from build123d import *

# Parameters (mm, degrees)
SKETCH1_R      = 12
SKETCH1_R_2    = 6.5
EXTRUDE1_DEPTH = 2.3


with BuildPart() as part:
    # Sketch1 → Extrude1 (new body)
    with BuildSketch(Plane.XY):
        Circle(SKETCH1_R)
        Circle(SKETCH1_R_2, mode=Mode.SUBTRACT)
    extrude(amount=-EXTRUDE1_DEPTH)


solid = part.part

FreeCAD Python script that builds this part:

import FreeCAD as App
import Part
import Sketcher
Q = App.Units.Quantity

doc = App.newDocument("Part")
body = doc.addObject("PartDesign::Body", "Body")

sketch1 = doc.addObject("Sketcher::SketchObject", "Sketch")
body.addObject(sketch1)
sketch1.AttachmentSupport = (doc.XY_Plane, [""])
sketch1.MapMode = "FlatFace"
sketch1.addGeometry(Part.Circle(App.Vector(0, 0, 0), App.Vector(0, 0, 1), 12), False)
sketch1.addGeometry(Part.Circle(App.Vector(0, 0, 0), App.Vector(0, 0, 1), 6), False)
sketch1.addConstraint(Sketcher.Constraint("Coincident", 0, 3, -1, 1))
sketch1.addConstraint(Sketcher.Constraint("Coincident", 1, 3, -1, 1))
sketch1.addConstraint(Sketcher.Constraint("Diameter", 0, Q("24 mm")))
sketch1.addConstraint(Sketcher.Constraint("Diameter", 1, Q("13 mm")))
pad1 = doc.addObject("PartDesign::Pad", "Pad")
body.addObject(pad1)
pad1.Profile = sketch1
pad1.Length = 2.3
pad1.Reversed = True

doc.recompute()
